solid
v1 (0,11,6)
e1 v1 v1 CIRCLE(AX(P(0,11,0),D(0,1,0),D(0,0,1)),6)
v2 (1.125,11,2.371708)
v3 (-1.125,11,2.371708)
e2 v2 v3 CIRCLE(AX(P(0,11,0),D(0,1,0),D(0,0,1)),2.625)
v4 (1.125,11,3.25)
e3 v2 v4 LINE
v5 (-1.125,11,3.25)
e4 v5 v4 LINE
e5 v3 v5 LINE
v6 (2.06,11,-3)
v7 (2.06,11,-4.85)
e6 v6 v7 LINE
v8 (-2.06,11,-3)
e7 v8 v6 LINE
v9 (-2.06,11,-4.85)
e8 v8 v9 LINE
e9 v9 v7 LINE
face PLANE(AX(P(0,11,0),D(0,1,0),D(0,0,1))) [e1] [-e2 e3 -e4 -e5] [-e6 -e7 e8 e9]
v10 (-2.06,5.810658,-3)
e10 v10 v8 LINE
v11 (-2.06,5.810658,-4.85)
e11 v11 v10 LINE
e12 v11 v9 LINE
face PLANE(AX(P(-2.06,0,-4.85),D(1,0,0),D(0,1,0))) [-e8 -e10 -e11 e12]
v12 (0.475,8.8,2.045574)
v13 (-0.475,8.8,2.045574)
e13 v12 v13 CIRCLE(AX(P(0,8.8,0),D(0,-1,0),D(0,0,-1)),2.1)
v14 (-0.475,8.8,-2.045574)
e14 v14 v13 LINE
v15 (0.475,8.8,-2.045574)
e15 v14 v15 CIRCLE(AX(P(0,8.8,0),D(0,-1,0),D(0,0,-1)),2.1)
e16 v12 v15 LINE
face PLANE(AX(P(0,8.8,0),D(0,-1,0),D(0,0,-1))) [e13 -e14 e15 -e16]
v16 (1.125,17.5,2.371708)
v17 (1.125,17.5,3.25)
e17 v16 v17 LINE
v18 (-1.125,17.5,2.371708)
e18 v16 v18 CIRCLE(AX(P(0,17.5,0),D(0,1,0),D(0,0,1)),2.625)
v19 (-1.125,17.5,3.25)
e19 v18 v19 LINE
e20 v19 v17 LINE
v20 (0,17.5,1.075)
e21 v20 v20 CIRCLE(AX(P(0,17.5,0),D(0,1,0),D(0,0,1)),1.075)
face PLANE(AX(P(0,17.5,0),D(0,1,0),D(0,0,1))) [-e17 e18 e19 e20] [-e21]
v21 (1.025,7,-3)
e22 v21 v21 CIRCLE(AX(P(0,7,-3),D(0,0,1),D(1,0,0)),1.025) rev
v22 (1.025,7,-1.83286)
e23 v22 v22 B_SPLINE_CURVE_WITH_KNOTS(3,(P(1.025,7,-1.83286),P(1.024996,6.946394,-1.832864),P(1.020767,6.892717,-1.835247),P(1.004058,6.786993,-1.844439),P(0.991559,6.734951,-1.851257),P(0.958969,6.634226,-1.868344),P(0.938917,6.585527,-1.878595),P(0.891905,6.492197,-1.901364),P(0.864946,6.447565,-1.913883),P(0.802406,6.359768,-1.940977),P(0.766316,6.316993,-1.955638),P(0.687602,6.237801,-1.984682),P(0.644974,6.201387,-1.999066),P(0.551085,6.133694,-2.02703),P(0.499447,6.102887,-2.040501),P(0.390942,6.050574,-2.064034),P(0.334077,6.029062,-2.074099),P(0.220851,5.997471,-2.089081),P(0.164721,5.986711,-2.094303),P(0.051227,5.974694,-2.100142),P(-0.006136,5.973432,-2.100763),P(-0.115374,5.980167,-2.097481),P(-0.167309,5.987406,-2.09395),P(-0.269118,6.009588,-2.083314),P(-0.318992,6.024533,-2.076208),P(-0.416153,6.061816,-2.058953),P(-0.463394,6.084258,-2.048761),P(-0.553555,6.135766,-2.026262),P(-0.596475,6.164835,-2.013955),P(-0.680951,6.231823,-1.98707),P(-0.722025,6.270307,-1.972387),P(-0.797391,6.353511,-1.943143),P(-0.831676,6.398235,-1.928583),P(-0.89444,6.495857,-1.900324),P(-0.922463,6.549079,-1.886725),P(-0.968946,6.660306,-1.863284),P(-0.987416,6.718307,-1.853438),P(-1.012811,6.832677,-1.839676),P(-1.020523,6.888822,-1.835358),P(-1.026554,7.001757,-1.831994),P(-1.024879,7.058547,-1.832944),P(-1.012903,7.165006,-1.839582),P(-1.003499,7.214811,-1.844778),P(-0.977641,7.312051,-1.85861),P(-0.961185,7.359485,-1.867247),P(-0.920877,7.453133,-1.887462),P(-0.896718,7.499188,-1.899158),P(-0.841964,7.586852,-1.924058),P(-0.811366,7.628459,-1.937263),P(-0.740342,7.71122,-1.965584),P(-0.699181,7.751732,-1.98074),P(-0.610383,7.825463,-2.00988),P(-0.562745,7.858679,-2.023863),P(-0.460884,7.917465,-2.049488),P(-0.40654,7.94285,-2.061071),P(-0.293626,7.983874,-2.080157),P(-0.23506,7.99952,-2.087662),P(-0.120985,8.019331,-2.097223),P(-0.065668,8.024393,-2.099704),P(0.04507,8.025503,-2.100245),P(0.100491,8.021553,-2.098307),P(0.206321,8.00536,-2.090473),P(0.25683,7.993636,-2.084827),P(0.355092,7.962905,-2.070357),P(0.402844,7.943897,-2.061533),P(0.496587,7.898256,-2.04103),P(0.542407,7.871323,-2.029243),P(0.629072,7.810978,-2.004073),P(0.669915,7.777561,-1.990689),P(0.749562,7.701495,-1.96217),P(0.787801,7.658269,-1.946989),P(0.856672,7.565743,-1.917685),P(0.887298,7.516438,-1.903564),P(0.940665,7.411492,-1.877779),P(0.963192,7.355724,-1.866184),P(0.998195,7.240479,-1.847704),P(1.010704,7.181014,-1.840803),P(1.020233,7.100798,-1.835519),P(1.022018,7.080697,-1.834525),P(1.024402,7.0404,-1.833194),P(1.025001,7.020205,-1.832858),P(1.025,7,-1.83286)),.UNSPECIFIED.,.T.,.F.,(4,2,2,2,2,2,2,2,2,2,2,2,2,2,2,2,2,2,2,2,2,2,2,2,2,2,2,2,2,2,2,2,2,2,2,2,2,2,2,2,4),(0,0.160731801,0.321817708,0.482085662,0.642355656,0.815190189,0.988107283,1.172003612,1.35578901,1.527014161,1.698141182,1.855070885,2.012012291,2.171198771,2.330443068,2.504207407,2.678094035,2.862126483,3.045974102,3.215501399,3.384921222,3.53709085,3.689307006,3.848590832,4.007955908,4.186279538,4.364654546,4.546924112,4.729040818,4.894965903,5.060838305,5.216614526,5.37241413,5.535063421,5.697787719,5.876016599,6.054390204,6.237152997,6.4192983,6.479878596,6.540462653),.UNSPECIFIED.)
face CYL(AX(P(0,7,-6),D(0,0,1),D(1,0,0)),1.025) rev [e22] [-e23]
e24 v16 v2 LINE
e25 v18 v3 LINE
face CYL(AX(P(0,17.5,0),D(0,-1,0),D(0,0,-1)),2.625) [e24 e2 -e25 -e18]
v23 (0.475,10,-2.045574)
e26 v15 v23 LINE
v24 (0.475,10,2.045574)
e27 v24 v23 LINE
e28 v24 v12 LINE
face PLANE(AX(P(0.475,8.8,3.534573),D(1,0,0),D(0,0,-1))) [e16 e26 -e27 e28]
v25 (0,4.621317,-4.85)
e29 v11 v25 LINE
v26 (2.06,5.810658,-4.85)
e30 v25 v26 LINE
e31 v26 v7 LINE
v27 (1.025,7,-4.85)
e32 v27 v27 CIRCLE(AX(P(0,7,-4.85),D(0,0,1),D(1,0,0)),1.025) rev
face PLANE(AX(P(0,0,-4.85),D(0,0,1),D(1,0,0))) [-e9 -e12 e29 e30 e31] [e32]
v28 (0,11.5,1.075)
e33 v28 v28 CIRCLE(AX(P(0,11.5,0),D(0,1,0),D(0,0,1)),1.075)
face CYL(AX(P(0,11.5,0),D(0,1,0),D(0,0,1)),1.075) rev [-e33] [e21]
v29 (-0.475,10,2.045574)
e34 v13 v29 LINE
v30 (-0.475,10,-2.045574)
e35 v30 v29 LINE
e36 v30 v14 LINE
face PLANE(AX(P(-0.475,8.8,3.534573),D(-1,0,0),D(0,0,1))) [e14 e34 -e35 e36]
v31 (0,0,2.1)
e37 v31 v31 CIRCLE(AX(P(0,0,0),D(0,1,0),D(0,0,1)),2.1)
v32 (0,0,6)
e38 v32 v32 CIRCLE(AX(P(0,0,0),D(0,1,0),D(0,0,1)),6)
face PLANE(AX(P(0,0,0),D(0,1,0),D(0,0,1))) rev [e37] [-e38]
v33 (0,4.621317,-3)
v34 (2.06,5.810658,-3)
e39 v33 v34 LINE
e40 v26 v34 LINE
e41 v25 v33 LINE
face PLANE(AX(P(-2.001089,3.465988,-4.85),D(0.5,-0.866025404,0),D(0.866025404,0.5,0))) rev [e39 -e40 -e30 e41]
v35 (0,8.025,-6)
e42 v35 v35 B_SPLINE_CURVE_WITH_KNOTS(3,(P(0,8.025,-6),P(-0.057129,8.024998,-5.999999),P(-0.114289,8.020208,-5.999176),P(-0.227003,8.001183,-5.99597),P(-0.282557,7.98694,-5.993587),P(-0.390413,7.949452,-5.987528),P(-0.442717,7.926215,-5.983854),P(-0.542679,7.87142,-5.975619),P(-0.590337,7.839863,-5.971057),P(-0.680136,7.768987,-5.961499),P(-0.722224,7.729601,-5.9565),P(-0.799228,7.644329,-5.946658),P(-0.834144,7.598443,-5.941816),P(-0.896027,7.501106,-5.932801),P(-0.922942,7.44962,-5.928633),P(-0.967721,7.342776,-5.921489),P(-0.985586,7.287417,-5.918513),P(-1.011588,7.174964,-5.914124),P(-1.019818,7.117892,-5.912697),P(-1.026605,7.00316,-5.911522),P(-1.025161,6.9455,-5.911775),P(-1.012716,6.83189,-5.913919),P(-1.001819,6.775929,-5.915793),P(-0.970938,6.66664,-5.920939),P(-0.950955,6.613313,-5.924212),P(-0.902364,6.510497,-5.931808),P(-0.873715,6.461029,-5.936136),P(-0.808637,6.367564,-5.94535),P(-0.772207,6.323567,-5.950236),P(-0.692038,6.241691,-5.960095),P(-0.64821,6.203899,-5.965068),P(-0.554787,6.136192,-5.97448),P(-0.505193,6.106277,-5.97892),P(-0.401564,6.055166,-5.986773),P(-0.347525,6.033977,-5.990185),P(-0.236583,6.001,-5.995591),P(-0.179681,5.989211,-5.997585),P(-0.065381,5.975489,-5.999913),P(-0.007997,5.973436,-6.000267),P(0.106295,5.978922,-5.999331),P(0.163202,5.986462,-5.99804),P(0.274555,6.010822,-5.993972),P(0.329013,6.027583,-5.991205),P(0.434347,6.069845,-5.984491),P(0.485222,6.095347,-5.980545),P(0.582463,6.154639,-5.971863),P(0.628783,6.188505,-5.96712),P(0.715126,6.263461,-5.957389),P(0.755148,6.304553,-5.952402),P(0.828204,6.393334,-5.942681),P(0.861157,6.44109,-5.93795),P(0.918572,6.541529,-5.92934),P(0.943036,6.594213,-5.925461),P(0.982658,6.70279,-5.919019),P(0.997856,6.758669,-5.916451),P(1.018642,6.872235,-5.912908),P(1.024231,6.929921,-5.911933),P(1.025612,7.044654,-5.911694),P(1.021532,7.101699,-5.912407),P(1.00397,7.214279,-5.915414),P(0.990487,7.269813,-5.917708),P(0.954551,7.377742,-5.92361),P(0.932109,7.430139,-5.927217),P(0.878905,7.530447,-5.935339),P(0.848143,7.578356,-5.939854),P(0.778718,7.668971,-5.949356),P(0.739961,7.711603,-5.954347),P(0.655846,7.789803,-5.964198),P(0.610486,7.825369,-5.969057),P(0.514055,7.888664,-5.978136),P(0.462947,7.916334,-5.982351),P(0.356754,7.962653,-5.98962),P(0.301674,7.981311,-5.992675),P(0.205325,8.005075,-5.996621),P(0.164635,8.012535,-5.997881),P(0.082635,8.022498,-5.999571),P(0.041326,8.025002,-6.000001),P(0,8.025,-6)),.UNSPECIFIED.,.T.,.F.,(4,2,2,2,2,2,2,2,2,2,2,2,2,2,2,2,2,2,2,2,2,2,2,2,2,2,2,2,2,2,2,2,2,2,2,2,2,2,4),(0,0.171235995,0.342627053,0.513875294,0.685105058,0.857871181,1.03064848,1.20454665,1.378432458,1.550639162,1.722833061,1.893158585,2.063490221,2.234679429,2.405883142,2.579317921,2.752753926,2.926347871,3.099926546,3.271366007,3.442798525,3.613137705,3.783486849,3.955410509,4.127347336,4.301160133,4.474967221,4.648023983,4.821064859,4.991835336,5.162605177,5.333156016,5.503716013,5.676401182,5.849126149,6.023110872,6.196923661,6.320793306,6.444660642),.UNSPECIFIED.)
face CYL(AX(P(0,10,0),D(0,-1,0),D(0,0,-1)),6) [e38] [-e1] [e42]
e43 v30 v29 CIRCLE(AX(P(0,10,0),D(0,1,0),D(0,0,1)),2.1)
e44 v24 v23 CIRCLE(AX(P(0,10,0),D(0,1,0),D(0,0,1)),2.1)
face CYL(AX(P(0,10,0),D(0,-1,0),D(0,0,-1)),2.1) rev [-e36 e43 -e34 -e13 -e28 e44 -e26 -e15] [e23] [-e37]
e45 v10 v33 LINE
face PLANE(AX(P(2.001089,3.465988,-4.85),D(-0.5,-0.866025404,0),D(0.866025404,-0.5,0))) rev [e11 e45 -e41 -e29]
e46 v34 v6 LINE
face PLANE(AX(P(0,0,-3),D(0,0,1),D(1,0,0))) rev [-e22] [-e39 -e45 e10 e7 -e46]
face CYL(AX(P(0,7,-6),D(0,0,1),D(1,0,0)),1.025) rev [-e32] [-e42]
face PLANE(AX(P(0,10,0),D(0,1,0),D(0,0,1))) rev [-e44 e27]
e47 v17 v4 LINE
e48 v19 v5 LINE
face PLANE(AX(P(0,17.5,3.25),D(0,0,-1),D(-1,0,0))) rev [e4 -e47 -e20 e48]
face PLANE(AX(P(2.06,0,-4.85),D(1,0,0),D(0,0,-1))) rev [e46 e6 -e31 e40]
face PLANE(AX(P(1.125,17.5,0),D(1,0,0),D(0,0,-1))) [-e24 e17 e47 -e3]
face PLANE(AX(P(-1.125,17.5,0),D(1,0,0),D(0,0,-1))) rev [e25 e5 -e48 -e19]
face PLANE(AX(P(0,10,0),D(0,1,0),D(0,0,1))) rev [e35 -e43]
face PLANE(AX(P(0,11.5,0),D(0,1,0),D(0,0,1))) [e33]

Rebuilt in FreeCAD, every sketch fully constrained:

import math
import FreeCAD as App
import Part
import Sketcher
Q = App.Units.Quantity

doc = App.newDocument("Part")
params = doc.addObject("Spreadsheet::Sheet", "Params")
for row, (alias, value) in enumerate([
    ("sketch1_diameter", "12 mm"),
    ("pad1_length", "10 mm"),
    ("sketch2_diameter", "2.05 mm"),
    ("sketch3_diameter", "4.2 mm"),
    ("sketch4_width", "0.95 mm"),
    ("pad2_length", "1.2 mm"),
    ("sketch5_diameter", "12 mm"),
    ("pad3_length", "1 mm"),
    ("sketch6_width", "2.25 mm"),
    ("pad4_length", "6.5 mm"),
    ("sketch7_diameter", "2.15 mm"),
    ("pocket3_length", "6 mm"),
    ("sketch8_width", "4.12 mm"),
    ("pocket4_length", "1.85 mm"),
], start=1):
    params.set(f"A{row}", alias)
    params.set(f"B{row}", "=" + value)
    params.setAlias(f"B{row}", alias)

body = doc.addObject("PartDesign::Body", "Body")

sketch1 = doc.addObject("Sketcher::SketchObject", "Sketch")
body.addObject(sketch1)
sketch1.AttachmentSupport = (doc.XZ_Plane, [""])
sketch1.MapMode = "FlatFace"
sketch1.addGeometry(Part.Circle(App.Vector(0, 0, 0), App.Vector(0, 0, 1), 6), False)
sketch1.addConstraint([
    Sketcher.Constraint("Coincident", 0, 3, -1, 1),
    Sketcher.Constraint("Diameter", 0, Q("12 mm")),
])
sketch1.setExpression("Constraints[1]", "Params.sketch1_diameter")
pad1 = doc.addObject("PartDesign::Pad", "Pad")
body.addObject(pad1)
pad1.Profile = sketch1
pad1.setExpression("Length", "Params.pad1_length")
pad1.Reversed = True

sketch2 = doc.addObject("Sketcher::SketchObject", "Sketch001")
body.addObject(sketch2)
sketch2.AttachmentSupport = (doc.XY_Plane, [""])
sketch2.MapMode = "FlatFace"
sketch2.addGeometry(Part.Circle(App.Vector(0, 7, 0), App.Vector(0, 0, 1), 1.025), False)
sketch2.addConstraint([
    Sketcher.Constraint("PointOnObject", 0, 3, -2),
    Sketcher.Constraint("Diameter", 0, Q("2.05 mm")),
    Sketcher.Constraint("DistanceY", -1, 1, 0, 3, Q("7 mm")),
])
sketch2.setExpression("Constraints[1]", "Params.sketch2_diameter")
pocket1 = doc.addObject("PartDesign::Pocket", "Pocket")
body.addObject(pocket1)
pocket1.Profile = sketch2
pocket1.Type = "ThroughAll"

sketch3 = doc.addObject("Sketcher::SketchObject", "Sketch002")
body.addObject(sketch3)
sketch3.AttachmentSupport = (doc.XZ_Plane, [""])
sketch3.MapMode = "FlatFace"
sketch3.addGeometry(Part.Circle(App.Vector(0, 0, 0), App.Vector(0, 0, 1), 2.1), False)
sketch3.addConstraint([
    Sketcher.Constraint("Coincident", 0, 3, -1, 1),
    Sketcher.Constraint("Diameter", 0, Q("4.2 mm")),
])
sketch3.setExpression("Constraints[1]", "Params.sketch3_diameter")
pocket2 = doc.addObject("PartDesign::Pocket", "Pocket001")
body.addObject(pocket2)
pocket2.Profile = sketch3
pocket2.Type = "ThroughAll"

sketch4 = doc.addObject("Sketcher::SketchObject", "Sketch003")
body.addObject(sketch4)
sketch4.AttachmentSupport = (doc.XZ_Plane, [""])
sketch4.MapMode = "FlatFace"
sketch4.AttachmentOffset = App.Placement(App.Vector(0, 0, -10), App.Rotation())
sketch4.addGeometry([
    Part.LineSegment(App.Vector(-0.475, -3.534573, 0), App.Vector(-0.475, 3.534573, 0)),
    Part.LineSegment(App.Vector(-0.475, 3.534573, 0), App.Vector(0.475, 3.534573, 0)),
    Part.LineSegment(App.Vector(0.475, 3.534573, 0), App.Vector(0.475, -3.534573, 0)),
    Part.LineSegment(App.Vector(0.475, -3.534573, 0), App.Vector(-0.475, -3.534573, 0)),
], False)
sketch4.addConstraint([
    Sketcher.Constraint("Coincident", 0, 2, 1, 1),
    Sketcher.Constraint("Coincident", 1, 2, 2, 1),
    Sketcher.Constraint("Coincident", 2, 2, 3, 1),
    Sketcher.Constraint("Coincident", 3, 2, 0, 1),
    Sketcher.Constraint("Vertical", 0),
    Sketcher.Constraint("Horizontal", 1),
    Sketcher.Constraint("Vertical", 2),
    Sketcher.Constraint("Horizontal", 3),
    Sketcher.Constraint("Symmetric", 0, 2, 2, 2, -1, 1),
    Sketcher.Constraint("DistanceX", 1, 1, 1, 2, Q("0.95 mm")),
    Sketcher.Constraint("DistanceY", 0, 1, 0, 2, Q("7.069147 mm")),
])
sketch4.setExpression("Constraints[9]", "Params.sketch4_width")
pad2 = doc.addObject("PartDesign::Pad", "Pad001")
body.addObject(pad2)
pad2.Profile = sketch4
pad2.setExpression("Length", "Params.pad2_length")

sketch5 = doc.addObject("Sketcher::SketchObject", "Sketch004")
body.addObject(sketch5)
sketch5.AttachmentSupport = (doc.XZ_Plane, [""])
sketch5.MapMode = "FlatFace"
sketch5.AttachmentOffset = App.Placement(App.Vector(0, 0, -10), App.Rotation())
sketch5.addGeometry(Part.Circle(App.Vector(0, 0, 0), App.Vector(0, 0, 1), 6), False)
sketch5.addConstraint([
    Sketcher.Constraint("Coincident", 0, 3, -1, 1),
    Sketcher.Constraint("Diameter", 0, Q("12 mm")),
])
sketch5.setExpression("Constraints[1]", "Params.sketch5_diameter")
pad3 = doc.addObject("PartDesign::Pad", "Pad002")
body.addObject(pad3)
pad3.Profile = sketch5
pad3.setExpression("Length", "Params.pad3_length")
pad3.Reversed = True

sketch6 = doc.addObject("Sketcher::SketchObject", "Sketch005")
body.addObject(sketch6)
sketch6.AttachmentSupport = (doc.XZ_Plane, [""])
sketch6.MapMode = "FlatFace"
sketch6.AttachmentOffset = App.Placement(App.Vector(0, 0, -11), App.Rotation())
sketch6.addGeometry([
    Part.ArcOfCircle(Part.Circle(App.Vector(0, 0, 0), App.Vector(0, 0, 1), 2.625), math.radians(115.376934), math.radians(424.623066)),
    Part.LineSegment(App.Vector(-1.125, 2.371708, 0), App.Vector(-1.125, 3.25, 0)),
    Part.LineSegment(App.Vector(-1.125, 3.25, 0), App.Vector(1.125, 3.25, 0)),
    Part.LineSegment(App.Vector(1.125, 3.25, 0), App.Vector(1.125, 2.371708, 0)),
], False)
sketch6.addConstraint([
    Sketcher.Constraint("Coincident", 0, 1, 1, 1),
    Sketcher.Constraint("Coincident", 1, 2, 2, 1),
    Sketcher.Constraint("Coincident", 2, 2, 3, 1),
    Sketcher.Constraint("Coincident", 3, 2, 0, 2),
    Sketcher.Constraint("Vertical", 1),
    Sketcher.Constraint("Horizontal", 2),
    Sketcher.Constraint("Vertical", 3),
    Sketcher.Constraint("Coincident", 0, 3, -1, 1),
    Sketcher.Constraint("Horizontal", 0, 1, 3, 2),
    Sketcher.Constraint("Radius", 0, Q("2.625 mm")),
    Sketcher.Constraint("DistanceX", 2, 1, 2, 2, Q("2.25 mm")),
    Sketcher.Constraint("DistanceY", -1, 1, 1, 2, Q("3.25 mm")),
])
sketch6.setExpression("Constraints[10]", "Params.sketch6_width")
pad4 = doc.addObject("PartDesign::Pad", "Pad003")
body.addObject(pad4)
pad4.Profile = sketch6
pad4.setExpression("Length", "Params.pad4_length")
pad4.Reversed = True

sketch7 = doc.addObject("Sketcher::SketchObject", "Sketch006")
body.addObject(sketch7)
sketch7.AttachmentSupport = (doc.XZ_Plane, [""])
sketch7.MapMode = "FlatFace"
sketch7.AttachmentOffset = App.Placement(App.Vector(0, 0, -17.5), App.Rotation())
sketch7.addGeometry(Part.Circle(App.Vector(0, 0, 0), App.Vector(0, 0, 1), 1.075), False)
sketch7.addConstraint([
    Sketcher.Constraint("Coincident", 0, 3, -1, 1),
    Sketcher.Constraint("Diameter", 0, Q("2.15 mm")),
])
sketch7.setExpression("Constraints[1]", "Params.sketch7_diameter")
pocket3 = doc.addObject("PartDesign::Pocket", "Pocket002")
body.addObject(pocket3)
pocket3.Profile = sketch7
pocket3.setExpression("Length", "Params.pocket3_length")
pocket3.Reversed = True

sketch8 = doc.addObject("Sketcher::SketchObject", "Sketch007")
body.addObject(sketch8)
sketch8.AttachmentSupport = (doc.XY_Plane, [""])
sketch8.MapMode = "FlatFace"
sketch8.AttachmentOffset = App.Placement(App.Vector(0, 0, -3), App.Rotation())
sketch8.addGeometry([
    Part.LineSegment(App.Vector(0, 4.621317, 0), App.Vector(2.06, 5.810658, 0)),
    Part.LineSegment(App.Vector(2.06, 5.810658, 0), App.Vector(2.06, 11.363106, 0)),
    Part.LineSegment(App.Vector(2.06, 11.363106, 0), App.Vector(-2.06, 11.363106, 0)),
    Part.LineSegment(App.Vector(-2.06, 11.363106, 0), App.Vector(-2.06, 5.810658, 0)),
    Part.LineSegment(App.Vector(-2.06, 5.810658, 0), App.Vector(0, 4.621317, 0)),
], False)
sketch8.addConstraint([
    Sketcher.Constraint("Coincident", 0, 2, 1, 1),
    Sketcher.Constraint("Coincident", 1, 2, 2, 1),
    Sketcher.Constraint("Coincident", 2, 2, 3, 1),
    Sketcher.Constraint("Coincident", 3, 2, 4, 1),
    Sketcher.Constraint("Coincident", 4, 2, 0, 1),
    Sketcher.Constraint("Vertical", 1),
    Sketcher.Constraint("Horizontal", 2),
    Sketcher.Constraint("Vertical", 3),
    Sketcher.Constraint("Symmetric", 0, 2, 3, 2, -2),
    Sketcher.Constraint("PointOnObject", 4, 2, -2),
    Sketcher.Constraint("Angle", 0, Q("30 deg")),
    Sketcher.Constraint("DistanceX", 2, 2, 2, 1, Q("4.12 mm")),
    Sketcher.Constraint("DistanceY", 1, 1, 1, 2, Q("5.552447 mm")),
    Sketcher.Constraint("DistanceY", -1, 1, 0, 2, Q("5.810658 mm")),
])
sketch8.setExpression("Constraints[11]", "Params.sketch8_width")
pocket4 = doc.addObject("PartDesign::Pocket", "Pocket003")
body.addObject(pocket4)
pocket4.Profile = sketch8
pocket4.setExpression("Length", "Params.pocket4_length")

doc.recompute()
